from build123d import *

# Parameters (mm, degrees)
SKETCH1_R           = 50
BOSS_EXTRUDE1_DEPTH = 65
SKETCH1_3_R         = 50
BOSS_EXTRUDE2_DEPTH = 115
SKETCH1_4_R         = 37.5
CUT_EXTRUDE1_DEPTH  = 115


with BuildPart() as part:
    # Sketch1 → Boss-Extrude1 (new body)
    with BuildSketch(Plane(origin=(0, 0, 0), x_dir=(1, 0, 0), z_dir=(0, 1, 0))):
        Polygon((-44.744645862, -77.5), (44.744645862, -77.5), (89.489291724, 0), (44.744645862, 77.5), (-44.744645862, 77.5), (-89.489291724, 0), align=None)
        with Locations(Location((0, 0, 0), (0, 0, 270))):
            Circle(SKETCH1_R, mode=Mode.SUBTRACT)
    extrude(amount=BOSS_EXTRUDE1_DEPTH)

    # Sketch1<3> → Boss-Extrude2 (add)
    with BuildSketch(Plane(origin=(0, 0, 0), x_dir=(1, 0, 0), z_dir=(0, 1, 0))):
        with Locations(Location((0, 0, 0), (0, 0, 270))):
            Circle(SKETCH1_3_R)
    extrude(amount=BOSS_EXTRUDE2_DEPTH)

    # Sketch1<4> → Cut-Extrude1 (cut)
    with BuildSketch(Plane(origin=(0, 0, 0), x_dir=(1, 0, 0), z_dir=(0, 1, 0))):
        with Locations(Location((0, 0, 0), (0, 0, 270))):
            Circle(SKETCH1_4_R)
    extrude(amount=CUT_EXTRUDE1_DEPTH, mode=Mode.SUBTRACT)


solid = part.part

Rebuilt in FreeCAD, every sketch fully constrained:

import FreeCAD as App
import Part
import Sketcher
from FreeCAD import Vector
Q = App.Units.Quantity

doc = App.newDocument("Part")
body = doc.addObject("PartDesign::Body", "Body")

sketch1 = doc.addObject("Sketcher::SketchObject", "Sketch")
body.addObject(sketch1)
sketch1.AttachmentSupport = (doc.XZ_Plane, [""])
sketch1.MapMode = "FlatFace"
sketch1.addGeometry([
    Part.LineSegment(Vector(-45, 78, 0), Vector(45, 78, 0)),
    Part.LineSegment(Vector(45, 78, 0), Vector(89, 0, 0)),
    Part.LineSegment(Vector(89, 0, 0), Vector(45, -78, 0)),
    Part.LineSegment(Vector(45, -78, 0), Vector(-45, -78, 0)),
    Part.LineSegment(Vector(-45, -78, 0), Vector(-89, 0, 0)),
    Part.LineSegment(Vector(-89, 0, 0), Vector(-45, 78, 0)),
    Part.Circle(Vector(0, 0, 0), Vector(0, 0, 1), 50),
], False)
sketch1.addConstraint([
    Sketcher.Constraint("Coincident", 0, 2, 1, 1),
    Sketcher.Constraint("Coincident", 1, 2, 2, 1),
    Sketcher.Constraint("Coincident", 2, 2, 3, 1),
    Sketcher.Constraint("Coincident", 3, 2, 4, 1),
    Sketcher.Constraint("Coincident", 4, 2, 5, 1),
    Sketcher.Constraint("Coincident", 5, 2, 0, 1),
    Sketcher.Constraint("Horizontal", 0),
    Sketcher.Constraint("Horizontal", 3),
    Sketcher.Constraint("Coincident", 6, 3, -1, 1),
    Sketcher.Constraint("Symmetric", 0, 2, 3, 2, -1, 1),
    Sketcher.Constraint("Symmetric", 1, 2, 4, 2, -1, 1),
    Sketcher.Constraint("PointOnObject", 1, 2, -1),
    Sketcher.Constraint("Parallel", 2, 5),
    Sketcher.Constraint("Vertical", 0, 2, 2, 2),
    Sketcher.Constraint("Diameter", 6, Q("100 mm")),
    Sketcher.Constraint("Angle", 1, Q("-60 deg")),
    Sketcher.Constraint("DistanceY", 2, 2, 0, 2, Q("155 mm")),
    Sketcher.Constraint("DistanceX", 0, 1, 0, 2, Q("89.489292 mm")),
])
pad1 = doc.addObject("PartDesign::Pad", "Pad")
body.addObject(pad1)
pad1.Profile = sketch1
pad1.Length = 65
pad1.Reversed = True

sketch2 = doc.addObject("Sketcher::SketchObject", "Sketch001")
body.addObject(sketch2)
sketch2.AttachmentSupport = (doc.XZ_Plane, [""])
sketch2.MapMode = "FlatFace"
sketch2.addGeometry(Part.Circle(Vector(0, 0, 0), Vector(0, 0, 1), 50), False)
sketch2.addConstraint([
    Sketcher.Constraint("Coincident", 0, 3, -1, 1),
    Sketcher.Constraint("Diameter", 0, Q("100 mm")),
])
pad2 = doc.addObject("PartDesign::Pad", "Pad001")
body.addObject(pad2)
pad2.Profile = sketch2
pad2.Length = 115
pad2.Reversed = True

sketch3 = doc.addObject("Sketcher::SketchObject", "Sketch002")
body.addObject(sketch3)
sketch3.AttachmentSupport = (doc.XZ_Plane, [""])
sketch3.MapMode = "FlatFace"
sketch3.addGeometry(Part.Circle(Vector(0, 0, 0), Vector(0, 0, 1), 38), False)
sketch3.addConstraint([
    Sketcher.Constraint("Coincident", 0, 3, -1, 1),
    Sketcher.Constraint("Diameter", 0, Q("75 mm")),
])
pocket1 = doc.addObject("PartDesign::Pocket", "Pocket")
body.addObject(pocket1)
pocket1.Profile = sketch3
pocket1.Length = 115

doc.recompute()
